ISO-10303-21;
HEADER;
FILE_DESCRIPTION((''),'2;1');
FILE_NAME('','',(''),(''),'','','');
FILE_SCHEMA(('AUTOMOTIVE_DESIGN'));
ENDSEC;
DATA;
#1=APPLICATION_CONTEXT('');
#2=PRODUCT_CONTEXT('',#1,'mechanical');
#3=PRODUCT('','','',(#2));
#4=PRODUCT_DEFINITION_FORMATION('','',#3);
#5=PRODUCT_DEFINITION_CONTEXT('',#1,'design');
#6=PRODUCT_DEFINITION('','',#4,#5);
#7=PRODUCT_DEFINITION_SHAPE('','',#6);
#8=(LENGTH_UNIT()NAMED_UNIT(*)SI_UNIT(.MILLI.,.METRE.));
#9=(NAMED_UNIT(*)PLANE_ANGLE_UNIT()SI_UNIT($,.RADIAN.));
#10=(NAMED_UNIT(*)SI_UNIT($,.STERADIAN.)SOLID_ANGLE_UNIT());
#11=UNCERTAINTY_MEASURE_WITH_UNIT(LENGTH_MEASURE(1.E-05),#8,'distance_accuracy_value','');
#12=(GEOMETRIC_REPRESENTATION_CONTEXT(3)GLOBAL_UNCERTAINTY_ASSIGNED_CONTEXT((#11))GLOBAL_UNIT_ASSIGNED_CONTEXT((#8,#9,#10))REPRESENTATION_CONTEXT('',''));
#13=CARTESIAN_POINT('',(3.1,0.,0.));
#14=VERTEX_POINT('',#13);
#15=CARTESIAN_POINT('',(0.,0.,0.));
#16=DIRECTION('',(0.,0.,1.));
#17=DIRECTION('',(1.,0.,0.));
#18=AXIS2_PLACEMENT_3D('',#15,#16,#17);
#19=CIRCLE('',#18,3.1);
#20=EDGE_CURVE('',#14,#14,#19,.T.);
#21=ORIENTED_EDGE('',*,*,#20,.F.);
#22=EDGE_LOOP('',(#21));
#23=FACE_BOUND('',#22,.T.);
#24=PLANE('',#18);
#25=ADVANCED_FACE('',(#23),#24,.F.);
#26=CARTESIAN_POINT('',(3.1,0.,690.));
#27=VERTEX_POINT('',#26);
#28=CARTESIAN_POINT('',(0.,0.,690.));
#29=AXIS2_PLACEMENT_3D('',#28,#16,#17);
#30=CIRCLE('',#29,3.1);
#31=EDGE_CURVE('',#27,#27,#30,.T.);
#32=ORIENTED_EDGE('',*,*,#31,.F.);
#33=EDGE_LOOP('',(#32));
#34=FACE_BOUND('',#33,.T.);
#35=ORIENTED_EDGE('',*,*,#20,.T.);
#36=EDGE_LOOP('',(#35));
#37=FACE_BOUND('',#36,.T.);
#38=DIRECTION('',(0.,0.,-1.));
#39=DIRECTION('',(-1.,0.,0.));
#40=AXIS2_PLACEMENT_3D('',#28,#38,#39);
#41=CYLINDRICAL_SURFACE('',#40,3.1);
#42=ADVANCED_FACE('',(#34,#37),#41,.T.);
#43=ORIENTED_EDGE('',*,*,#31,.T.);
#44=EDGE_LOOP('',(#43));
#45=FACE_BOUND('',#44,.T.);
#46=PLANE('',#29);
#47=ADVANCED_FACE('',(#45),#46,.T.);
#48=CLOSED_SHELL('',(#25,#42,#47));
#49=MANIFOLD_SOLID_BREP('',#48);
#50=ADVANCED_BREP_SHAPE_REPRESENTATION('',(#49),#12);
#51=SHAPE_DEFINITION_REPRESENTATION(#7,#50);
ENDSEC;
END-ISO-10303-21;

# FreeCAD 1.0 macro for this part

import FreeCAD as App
import Part
import Sketcher

V = App.Vector
Q = App.Units.Quantity

doc = App.newDocument("Part")
params = doc.addObject("Spreadsheet::Sheet", "Params")
for row, (alias, value) in enumerate([
    ("sketch1_diameter", "6.2 mm"),
    ("pad1_length", "690 mm"),
], start=1):
    params.set(f"A{row}", alias)
    params.set(f"B{row}", "=" + value)
    params.setAlias(f"B{row}", alias)

body = doc.addObject("PartDesign::Body", "Body")

sketch1 = body.newObject("Sketcher::SketchObject", "Sketch")
sketch1.AttachmentSupport = (doc.getObject("XY_Plane"), [""])
sketch1.MapMode = "FlatFace"
sketch1.addGeometry(Part.Circle(V(0, 0, 0), V(0, 0, 1), 3.1), False)
sketch1.addConstraint([
    Sketcher.Constraint("Coincident", 0, 3, -1, 1),
    Sketcher.Constraint("Diameter", 0, Q("6.2 mm")),
])
sketch1.setExpression("Constraints[1]", "Params.sketch1_diameter")
pad1 = body.newObject("PartDesign::Pad", "Pad")
pad1.Profile = sketch1
pad1.setExpression("Length", "Params.pad1_length")

doc.recompute()
